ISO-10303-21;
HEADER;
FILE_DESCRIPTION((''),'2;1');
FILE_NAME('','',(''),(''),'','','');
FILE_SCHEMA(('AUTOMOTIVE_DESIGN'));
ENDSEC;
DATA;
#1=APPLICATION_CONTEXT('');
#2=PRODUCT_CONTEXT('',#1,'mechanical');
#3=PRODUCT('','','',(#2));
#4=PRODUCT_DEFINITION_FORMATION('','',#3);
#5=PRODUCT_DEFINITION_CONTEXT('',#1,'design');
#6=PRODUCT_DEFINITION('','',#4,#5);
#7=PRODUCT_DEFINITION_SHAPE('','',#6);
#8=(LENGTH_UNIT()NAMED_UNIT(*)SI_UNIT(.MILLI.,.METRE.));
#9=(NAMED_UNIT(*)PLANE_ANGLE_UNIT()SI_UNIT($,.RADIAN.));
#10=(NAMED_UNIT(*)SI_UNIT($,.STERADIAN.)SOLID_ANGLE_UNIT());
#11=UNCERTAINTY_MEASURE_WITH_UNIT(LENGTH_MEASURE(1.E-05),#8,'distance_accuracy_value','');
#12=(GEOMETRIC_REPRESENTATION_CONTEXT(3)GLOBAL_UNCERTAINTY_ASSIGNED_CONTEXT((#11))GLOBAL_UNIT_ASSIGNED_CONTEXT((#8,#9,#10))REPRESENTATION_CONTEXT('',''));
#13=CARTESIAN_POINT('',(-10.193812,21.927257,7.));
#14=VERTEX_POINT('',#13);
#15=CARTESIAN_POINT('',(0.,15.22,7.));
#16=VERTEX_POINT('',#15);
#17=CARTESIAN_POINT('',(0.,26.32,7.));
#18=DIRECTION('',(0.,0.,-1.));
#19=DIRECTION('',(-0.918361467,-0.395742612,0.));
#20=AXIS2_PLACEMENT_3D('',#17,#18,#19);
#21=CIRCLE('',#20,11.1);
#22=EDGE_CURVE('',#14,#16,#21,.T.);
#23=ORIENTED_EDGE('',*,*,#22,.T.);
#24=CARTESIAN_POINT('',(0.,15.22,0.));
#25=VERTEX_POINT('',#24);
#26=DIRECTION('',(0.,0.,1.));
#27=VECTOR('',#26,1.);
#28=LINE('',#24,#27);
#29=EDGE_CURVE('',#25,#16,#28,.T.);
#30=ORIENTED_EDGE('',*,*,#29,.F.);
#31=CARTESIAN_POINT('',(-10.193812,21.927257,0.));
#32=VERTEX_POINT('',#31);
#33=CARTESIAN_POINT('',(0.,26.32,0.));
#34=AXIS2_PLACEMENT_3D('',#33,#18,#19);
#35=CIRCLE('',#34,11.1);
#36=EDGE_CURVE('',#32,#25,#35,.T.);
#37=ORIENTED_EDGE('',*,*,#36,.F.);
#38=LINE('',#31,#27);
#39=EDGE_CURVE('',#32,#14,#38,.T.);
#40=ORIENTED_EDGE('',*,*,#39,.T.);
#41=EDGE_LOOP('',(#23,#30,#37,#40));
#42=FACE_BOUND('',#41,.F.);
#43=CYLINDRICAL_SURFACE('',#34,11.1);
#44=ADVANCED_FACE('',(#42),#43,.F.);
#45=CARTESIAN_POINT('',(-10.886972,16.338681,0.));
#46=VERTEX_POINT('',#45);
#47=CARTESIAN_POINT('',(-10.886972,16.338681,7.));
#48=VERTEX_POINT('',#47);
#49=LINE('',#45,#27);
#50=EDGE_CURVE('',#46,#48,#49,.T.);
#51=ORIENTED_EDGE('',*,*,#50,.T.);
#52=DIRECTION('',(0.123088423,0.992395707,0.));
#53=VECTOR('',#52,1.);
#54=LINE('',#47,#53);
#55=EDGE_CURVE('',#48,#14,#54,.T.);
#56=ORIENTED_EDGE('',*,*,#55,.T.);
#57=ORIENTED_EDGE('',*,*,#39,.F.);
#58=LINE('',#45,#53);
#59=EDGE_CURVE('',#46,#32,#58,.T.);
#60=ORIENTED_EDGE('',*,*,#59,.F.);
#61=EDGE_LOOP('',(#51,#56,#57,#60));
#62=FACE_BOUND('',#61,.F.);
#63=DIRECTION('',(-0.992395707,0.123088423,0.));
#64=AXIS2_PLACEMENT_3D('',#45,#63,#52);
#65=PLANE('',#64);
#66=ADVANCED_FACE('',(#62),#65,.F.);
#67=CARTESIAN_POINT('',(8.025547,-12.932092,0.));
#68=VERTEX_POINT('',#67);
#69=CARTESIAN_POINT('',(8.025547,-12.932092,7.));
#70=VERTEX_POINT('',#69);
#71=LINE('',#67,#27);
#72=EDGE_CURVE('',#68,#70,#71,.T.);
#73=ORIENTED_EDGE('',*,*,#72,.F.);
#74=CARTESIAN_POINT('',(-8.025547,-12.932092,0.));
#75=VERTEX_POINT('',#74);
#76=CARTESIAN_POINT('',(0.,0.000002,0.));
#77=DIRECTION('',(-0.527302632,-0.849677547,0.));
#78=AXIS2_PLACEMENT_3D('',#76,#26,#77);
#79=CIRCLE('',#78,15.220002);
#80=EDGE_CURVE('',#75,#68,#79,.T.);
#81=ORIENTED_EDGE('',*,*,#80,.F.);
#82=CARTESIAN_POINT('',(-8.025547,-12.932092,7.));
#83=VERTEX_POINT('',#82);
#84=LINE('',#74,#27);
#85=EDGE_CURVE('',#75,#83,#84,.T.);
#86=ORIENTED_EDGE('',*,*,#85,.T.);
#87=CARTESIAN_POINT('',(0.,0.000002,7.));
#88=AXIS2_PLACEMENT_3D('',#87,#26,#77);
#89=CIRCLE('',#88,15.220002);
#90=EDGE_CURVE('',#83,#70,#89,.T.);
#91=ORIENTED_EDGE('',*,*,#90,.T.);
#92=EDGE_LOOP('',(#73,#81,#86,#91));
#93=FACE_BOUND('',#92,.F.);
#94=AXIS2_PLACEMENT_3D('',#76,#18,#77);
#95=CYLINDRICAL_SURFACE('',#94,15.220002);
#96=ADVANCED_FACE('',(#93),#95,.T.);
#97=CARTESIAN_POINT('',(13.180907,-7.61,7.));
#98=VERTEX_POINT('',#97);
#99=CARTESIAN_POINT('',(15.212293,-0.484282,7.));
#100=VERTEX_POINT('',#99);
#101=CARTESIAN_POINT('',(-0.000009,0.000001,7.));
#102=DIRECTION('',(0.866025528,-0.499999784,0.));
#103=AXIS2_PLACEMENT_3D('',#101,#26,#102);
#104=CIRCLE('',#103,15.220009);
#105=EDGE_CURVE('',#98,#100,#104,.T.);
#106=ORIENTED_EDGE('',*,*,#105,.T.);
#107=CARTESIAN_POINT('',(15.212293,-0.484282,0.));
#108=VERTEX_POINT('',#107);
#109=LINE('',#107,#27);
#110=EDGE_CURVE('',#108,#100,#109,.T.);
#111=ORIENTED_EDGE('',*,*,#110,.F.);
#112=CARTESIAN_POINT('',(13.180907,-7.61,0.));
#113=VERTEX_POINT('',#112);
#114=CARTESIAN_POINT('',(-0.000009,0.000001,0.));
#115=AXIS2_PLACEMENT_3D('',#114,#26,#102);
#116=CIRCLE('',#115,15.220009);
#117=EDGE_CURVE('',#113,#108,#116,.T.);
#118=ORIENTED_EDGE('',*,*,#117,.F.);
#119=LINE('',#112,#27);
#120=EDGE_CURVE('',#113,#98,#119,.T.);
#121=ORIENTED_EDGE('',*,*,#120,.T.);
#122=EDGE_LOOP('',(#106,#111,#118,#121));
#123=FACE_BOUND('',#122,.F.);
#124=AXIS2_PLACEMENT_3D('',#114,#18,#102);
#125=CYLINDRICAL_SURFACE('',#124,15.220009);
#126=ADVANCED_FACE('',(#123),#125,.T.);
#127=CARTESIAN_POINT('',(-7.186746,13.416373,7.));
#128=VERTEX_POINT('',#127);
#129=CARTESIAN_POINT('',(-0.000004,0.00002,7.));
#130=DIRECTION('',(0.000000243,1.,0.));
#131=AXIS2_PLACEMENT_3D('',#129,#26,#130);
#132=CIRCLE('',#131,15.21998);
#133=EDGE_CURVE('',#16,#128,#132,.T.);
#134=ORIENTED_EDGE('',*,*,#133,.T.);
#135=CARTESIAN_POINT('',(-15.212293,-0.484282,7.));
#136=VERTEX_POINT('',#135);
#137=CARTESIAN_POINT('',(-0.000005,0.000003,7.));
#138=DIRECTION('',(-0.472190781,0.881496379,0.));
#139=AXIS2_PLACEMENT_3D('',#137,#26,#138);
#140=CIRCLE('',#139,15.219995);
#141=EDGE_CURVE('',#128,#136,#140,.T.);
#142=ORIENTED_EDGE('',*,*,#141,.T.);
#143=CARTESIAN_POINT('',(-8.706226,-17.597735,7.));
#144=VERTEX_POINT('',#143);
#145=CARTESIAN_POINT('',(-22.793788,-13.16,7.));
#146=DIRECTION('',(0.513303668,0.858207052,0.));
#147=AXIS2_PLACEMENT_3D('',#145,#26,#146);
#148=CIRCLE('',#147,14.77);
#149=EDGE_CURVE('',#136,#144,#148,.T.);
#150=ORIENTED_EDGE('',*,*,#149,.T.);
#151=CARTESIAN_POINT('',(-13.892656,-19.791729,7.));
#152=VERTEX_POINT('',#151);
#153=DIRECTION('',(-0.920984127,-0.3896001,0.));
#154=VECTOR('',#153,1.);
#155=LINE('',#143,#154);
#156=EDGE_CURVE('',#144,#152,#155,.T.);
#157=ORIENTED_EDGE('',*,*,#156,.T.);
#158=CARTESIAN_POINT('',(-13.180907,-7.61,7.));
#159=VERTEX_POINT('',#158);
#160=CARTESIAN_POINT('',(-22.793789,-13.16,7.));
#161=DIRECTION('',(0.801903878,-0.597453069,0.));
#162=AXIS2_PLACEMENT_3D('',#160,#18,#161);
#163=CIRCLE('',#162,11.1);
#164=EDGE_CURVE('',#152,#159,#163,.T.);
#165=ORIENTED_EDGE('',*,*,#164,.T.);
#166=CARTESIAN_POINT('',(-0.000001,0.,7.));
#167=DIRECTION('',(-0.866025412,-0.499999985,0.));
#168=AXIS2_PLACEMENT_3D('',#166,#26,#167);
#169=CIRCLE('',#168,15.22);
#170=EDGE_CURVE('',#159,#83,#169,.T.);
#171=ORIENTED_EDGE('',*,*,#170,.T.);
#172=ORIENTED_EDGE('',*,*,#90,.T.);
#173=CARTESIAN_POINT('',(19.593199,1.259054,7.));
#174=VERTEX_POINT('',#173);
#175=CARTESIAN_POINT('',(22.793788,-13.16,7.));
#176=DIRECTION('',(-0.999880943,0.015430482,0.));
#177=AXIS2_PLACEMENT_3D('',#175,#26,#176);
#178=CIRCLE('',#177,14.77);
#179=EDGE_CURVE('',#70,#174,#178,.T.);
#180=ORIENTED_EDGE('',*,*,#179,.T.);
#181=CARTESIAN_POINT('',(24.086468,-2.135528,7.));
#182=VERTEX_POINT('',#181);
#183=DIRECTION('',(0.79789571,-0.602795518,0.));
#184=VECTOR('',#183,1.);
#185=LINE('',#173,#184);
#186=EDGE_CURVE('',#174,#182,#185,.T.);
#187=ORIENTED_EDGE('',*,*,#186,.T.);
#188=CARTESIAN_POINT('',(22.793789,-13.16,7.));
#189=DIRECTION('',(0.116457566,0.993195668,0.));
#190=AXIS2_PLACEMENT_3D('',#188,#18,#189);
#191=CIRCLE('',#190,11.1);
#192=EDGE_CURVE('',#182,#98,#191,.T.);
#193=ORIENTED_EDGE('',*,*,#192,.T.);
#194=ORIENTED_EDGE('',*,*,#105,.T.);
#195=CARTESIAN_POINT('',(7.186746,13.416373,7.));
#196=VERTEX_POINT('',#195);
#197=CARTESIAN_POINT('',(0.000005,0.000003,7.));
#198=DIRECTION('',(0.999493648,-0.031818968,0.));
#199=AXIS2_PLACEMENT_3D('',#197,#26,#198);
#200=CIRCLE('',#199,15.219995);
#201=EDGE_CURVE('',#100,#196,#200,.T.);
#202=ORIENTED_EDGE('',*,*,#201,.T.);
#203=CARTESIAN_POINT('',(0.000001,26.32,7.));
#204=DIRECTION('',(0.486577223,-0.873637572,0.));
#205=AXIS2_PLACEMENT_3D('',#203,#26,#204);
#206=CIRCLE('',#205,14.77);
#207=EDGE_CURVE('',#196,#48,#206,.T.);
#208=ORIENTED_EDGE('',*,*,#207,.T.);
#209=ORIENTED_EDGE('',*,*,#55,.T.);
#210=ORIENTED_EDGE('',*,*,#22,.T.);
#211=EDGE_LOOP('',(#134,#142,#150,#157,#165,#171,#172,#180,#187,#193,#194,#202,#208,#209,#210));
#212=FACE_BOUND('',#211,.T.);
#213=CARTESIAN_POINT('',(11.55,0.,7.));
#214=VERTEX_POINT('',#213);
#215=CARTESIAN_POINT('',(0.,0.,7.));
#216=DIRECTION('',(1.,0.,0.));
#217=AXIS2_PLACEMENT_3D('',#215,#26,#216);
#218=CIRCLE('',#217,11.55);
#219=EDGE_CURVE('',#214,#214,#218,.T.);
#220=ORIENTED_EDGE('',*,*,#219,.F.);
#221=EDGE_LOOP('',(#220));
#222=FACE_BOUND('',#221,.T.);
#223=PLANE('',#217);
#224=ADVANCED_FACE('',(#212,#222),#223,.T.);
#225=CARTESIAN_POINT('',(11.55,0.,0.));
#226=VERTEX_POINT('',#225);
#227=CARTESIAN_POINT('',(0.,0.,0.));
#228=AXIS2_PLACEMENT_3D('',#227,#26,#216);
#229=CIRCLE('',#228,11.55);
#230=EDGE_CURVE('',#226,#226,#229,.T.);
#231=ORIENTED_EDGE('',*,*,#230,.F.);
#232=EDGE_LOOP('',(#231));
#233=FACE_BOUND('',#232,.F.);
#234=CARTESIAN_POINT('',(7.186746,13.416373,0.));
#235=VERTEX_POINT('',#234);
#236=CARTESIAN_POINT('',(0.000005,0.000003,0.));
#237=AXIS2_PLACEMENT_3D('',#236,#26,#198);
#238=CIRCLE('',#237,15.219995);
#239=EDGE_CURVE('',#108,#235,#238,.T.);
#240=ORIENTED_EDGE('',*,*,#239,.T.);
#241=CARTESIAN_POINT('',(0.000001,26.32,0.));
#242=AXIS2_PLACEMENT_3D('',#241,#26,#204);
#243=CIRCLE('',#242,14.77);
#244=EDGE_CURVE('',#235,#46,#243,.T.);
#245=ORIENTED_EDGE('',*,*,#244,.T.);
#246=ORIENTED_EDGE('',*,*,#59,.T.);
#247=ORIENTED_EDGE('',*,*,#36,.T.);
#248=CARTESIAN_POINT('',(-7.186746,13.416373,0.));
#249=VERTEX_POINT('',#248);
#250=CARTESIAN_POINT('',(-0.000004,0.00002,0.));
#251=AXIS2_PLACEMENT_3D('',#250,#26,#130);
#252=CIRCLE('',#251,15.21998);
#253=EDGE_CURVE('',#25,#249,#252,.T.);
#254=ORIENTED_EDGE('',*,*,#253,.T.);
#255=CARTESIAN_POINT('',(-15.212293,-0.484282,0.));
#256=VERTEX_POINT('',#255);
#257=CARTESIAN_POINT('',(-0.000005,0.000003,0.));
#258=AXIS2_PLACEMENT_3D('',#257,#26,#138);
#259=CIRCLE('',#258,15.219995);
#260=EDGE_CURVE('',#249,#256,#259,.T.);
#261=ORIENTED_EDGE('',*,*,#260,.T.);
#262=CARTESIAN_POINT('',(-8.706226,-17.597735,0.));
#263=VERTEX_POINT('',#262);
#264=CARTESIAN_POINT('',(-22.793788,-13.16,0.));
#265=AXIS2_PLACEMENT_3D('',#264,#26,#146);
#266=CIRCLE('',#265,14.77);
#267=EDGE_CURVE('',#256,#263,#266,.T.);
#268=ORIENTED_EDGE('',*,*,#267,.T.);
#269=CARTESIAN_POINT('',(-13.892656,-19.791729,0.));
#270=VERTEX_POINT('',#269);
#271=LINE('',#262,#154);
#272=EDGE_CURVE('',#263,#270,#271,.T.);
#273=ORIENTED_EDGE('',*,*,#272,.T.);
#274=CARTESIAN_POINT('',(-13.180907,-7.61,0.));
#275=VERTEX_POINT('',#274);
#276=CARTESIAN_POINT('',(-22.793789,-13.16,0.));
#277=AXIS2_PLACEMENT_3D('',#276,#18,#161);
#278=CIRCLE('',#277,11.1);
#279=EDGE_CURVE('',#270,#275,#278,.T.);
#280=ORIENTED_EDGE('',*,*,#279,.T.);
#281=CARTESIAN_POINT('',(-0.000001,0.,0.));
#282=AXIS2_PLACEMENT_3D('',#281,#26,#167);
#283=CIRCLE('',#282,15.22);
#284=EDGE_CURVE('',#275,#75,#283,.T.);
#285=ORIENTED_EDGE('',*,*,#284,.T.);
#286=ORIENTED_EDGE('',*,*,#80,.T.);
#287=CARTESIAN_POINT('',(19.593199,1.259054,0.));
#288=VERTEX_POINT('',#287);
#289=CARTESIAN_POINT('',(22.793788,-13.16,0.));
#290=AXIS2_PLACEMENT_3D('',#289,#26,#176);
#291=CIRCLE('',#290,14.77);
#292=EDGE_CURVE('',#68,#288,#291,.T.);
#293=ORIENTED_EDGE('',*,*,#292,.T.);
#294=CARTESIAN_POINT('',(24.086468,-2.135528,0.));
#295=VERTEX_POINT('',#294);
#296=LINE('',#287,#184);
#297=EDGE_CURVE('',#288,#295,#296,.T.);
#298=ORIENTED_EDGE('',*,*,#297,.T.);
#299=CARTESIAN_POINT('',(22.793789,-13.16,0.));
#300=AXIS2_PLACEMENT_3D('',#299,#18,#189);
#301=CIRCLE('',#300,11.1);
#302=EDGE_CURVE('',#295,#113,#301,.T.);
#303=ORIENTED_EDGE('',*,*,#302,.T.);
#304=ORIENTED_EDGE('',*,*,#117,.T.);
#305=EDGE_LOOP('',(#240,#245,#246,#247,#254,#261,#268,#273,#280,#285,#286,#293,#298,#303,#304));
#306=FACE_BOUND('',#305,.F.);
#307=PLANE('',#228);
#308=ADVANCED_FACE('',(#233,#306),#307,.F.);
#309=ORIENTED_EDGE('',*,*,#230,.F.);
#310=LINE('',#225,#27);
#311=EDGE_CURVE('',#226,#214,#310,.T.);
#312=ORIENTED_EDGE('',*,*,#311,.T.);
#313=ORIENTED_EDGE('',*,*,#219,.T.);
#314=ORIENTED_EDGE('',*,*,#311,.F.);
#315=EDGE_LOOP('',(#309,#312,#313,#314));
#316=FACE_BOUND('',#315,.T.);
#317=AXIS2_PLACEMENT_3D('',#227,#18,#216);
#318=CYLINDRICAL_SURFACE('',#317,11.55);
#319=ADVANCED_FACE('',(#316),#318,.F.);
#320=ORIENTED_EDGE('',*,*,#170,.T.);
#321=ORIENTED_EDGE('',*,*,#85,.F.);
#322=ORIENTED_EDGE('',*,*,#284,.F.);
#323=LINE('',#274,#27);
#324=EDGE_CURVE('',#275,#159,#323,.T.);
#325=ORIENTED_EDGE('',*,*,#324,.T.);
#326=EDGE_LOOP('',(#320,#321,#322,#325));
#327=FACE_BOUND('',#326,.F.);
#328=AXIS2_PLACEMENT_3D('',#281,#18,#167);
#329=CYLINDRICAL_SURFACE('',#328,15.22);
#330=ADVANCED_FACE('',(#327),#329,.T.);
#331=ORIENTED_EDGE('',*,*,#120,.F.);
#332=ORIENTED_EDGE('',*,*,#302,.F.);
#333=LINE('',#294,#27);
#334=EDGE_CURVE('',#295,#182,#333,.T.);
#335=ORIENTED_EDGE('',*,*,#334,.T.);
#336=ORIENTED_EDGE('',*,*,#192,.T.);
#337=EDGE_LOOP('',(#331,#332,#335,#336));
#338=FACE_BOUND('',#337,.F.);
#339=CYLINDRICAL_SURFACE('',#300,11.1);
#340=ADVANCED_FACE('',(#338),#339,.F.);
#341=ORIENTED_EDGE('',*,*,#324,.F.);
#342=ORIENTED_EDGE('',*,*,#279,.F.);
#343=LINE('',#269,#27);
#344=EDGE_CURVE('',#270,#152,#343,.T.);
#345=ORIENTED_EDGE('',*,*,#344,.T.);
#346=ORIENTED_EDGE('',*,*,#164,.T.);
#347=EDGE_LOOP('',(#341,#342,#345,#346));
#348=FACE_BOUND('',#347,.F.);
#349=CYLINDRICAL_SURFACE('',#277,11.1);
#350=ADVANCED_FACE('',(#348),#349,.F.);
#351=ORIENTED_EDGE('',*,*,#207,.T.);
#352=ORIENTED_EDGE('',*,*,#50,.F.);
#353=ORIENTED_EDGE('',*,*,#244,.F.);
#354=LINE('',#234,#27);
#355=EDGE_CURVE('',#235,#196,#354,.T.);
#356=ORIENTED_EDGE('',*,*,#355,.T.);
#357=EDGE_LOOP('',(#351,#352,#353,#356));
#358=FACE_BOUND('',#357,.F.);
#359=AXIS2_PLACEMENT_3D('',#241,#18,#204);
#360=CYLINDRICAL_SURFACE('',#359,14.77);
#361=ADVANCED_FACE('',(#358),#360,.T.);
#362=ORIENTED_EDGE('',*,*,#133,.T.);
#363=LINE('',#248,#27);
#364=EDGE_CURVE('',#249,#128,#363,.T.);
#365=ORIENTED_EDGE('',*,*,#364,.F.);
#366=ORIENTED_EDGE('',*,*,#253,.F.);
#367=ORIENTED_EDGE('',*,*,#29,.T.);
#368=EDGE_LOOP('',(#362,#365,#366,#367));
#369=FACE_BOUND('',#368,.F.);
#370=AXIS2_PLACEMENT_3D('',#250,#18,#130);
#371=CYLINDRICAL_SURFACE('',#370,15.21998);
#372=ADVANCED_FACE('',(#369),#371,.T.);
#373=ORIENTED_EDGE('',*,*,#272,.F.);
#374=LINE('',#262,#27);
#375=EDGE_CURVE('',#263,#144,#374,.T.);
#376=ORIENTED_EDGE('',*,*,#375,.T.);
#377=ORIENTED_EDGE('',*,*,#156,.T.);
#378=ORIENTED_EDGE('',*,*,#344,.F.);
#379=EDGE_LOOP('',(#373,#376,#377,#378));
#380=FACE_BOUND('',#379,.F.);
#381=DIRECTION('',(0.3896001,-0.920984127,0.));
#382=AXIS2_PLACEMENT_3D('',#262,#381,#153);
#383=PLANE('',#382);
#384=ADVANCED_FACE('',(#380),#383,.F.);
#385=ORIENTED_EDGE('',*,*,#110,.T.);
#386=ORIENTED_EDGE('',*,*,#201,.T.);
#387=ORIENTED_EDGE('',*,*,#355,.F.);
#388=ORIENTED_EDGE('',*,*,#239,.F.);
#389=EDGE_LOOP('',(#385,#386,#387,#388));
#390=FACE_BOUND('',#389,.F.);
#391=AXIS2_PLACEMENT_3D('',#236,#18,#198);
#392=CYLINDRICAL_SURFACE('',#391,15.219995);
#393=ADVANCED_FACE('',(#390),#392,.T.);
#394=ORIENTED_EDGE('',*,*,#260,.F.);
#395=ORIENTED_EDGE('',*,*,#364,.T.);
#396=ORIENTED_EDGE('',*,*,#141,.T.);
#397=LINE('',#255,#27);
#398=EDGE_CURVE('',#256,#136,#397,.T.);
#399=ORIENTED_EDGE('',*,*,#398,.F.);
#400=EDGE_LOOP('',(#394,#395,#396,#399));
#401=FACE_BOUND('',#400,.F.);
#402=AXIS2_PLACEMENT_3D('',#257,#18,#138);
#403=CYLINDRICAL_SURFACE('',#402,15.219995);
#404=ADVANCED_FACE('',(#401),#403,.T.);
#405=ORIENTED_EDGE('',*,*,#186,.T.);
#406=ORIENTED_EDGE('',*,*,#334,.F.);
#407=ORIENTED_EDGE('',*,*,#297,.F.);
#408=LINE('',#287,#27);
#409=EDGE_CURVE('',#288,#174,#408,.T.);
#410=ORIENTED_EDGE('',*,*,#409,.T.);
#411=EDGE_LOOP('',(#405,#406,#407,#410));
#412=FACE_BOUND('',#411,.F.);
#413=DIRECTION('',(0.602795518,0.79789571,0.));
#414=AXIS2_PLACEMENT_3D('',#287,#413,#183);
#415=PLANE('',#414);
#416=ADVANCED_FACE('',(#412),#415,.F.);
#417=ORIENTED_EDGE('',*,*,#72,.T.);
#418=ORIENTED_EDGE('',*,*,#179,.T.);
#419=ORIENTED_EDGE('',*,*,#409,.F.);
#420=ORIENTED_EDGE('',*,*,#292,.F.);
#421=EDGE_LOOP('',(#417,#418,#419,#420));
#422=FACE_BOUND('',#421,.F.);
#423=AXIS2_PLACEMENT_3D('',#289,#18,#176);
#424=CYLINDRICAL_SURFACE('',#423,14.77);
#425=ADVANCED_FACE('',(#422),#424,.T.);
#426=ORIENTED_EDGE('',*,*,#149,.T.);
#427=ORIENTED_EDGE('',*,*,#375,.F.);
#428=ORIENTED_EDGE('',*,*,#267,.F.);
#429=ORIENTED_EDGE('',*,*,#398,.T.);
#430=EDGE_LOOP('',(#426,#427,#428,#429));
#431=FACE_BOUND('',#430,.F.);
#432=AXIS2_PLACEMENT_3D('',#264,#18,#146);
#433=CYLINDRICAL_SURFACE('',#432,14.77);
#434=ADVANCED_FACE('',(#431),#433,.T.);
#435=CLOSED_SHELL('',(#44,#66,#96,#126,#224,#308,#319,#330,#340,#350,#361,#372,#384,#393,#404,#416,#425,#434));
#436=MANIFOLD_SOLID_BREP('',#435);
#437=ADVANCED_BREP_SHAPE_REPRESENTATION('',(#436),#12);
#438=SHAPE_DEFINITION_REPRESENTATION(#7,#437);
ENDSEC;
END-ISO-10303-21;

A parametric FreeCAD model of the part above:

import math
import FreeCAD as App
import Part
import Sketcher

V = App.Vector
Q = App.Units.Quantity

doc = App.newDocument("Part")
body = doc.addObject("PartDesign::Body", "Body")

sketch1 = doc.addObject("Sketcher::SketchObject", "Sketch")
body.addObject(sketch1)
sketch1.AttachmentSupport = (doc.XY_Plane, [""])
sketch1.MapMode = "FlatFace"
sketch1.addGeometry([
    Part.ArcOfCircle(Part.Circle(V(0, 26, 0), V(0, 0, 1), 11), math.radians(-90), math.radians(203)),
    Part.ArcOfCircle(Part.Circle(V(0, 0, 0), V(0, 0, 1), 15), math.radians(90), math.radians(118)),
    Part.ArcOfCircle(Part.Circle(V(0, 0, 0), V(0, 0, 1), 15), math.radians(118), math.radians(182)),
    Part.ArcOfCircle(Part.Circle(V(-23, -13, 0), V(0, 0, 1), 15), math.radians(59), math.radians(343)),
    Part.LineSegment(V(-9, -18, 0), V(-14, -20, 0)),
    Part.ArcOfCircle(Part.Circle(V(-23, -13, 0), V(0, 0, 1), 11), math.radians(30), math.radians(323)),
    Part.ArcOfCircle(Part.Circle(V(0, 0, 0), V(0, 0, 1), 15), math.radians(-150), math.radians(-122)),
    Part.ArcOfCircle(Part.Circle(V(0, 0, 0), V(0, 0, 1), 15), math.radians(-122), math.radians(-58)),
    Part.ArcOfCircle(Part.Circle(V(23, -13, 0), V(0, 0, 1), 15), math.radians(179), math.radians(463)),
    Part.LineSegment(V(20, 1, 0), V(24, -2, 0)),
    Part.ArcOfCircle(Part.Circle(V(23, -13, 0), V(0, 0, 1), 11), math.radians(150), math.radians(443)),
    Part.ArcOfCircle(Part.Circle(V(0, 0, 0), V(0, 0, 1), 15), math.radians(-30), math.radians(-2)),
    Part.ArcOfCircle(Part.Circle(V(0, 0, 0), V(0, 0, 1), 15), math.radians(-2), math.radians(62)),
    Part.ArcOfCircle(Part.Circle(V(0, 26, 0), V(0, 0, 1), 15), math.radians(-61), math.radians(223)),
    Part.LineSegment(V(-11, 16, 0), V(-10, 22, 0)),
    Part.Circle(V(0, 0, 0), V(0, 0, 1), 12),
], False)
sketch1.addConstraint([
    Sketcher.Constraint("Tangent", 0, 1, 1, 1),
    Sketcher.Constraint("Tangent", 1, 2, 2, 1),
    Sketcher.Constraint("Coincident", 2, 2, 3, 1),
    Sketcher.Constraint("Coincident", 3, 2, 4, 1),
    Sketcher.Constraint("Coincident", 4, 2, 5, 2),
    Sketcher.Constraint("Tangent", 5, 1, 6, 1),
    Sketcher.Constraint("Tangent", 6, 2, 7, 1),
    Sketcher.Constraint("Coincident", 7, 2, 8, 1),
    Sketcher.Constraint("Coincident", 8, 2, 9, 1),
    Sketcher.Constraint("Coincident", 9, 2, 10, 2),
    Sketcher.Constraint("Tangent", 10, 1, 11, 1),
    Sketcher.Constraint("Tangent", 11, 2, 12, 1),
    Sketcher.Constraint("Coincident", 12, 2, 13, 1),
    Sketcher.Constraint("Coincident", 13, 2, 14, 1),
    Sketcher.Constraint("Coincident", 14, 2, 0, 2),
    Sketcher.Constraint("Coincident", 2, 3, -1, 1),
    Sketcher.Constraint("Coincident", 6, 3, -1, 1),
    Sketcher.Constraint("Coincident", 11, 3, -1, 1),
    Sketcher.Constraint("Coincident", 15, 3, -1, 1),
    Sketcher.Constraint("Coincident", 5, 3, 3, 3),
    Sketcher.Constraint("Coincident", 10, 3, 8, 3),
    Sketcher.Constraint("Coincident", 13, 3, 0, 3),
    Sketcher.Constraint("Equal", 0, 5),
    Sketcher.Constraint("Equal", 3, 8),
    Sketcher.Constraint("Equal", 5, 10),
    Sketcher.Constraint("Equal", 2, 12),
    Sketcher.Constraint("Equal", 8, 13),
    Sketcher.Constraint("Symmetric", 3, 3, 8, 3, -2),
    Sketcher.Constraint("Symmetric", 6, 2, 7, 2, -2),
    Sketcher.Constraint("Symmetric", 2, 2, 11, 2, -2),
    Sketcher.Constraint("PointOnObject", 0, 3, -2),
    Sketcher.Constraint("PointOnObject", 0, 1, -2),
    Sketcher.Constraint("Horizontal", 1, 2, 12, 2),
    Sketcher.Constraint("Equal", 4, 9),
    Sketcher.Constraint("Equal", 9, 14),
    Sketcher.Constraint("Diameter", 15, Q("23.1 mm")),
    Sketcher.Constraint("Radius", 0, Q("11.1 mm")),
    Sketcher.Constraint("Radius", 3, Q("14.77 mm")),
    Sketcher.Constraint("Radius", 6, Q("15.22 mm")),
    Sketcher.Constraint("DistanceY", 3, 3, -1, 1, Q("13.16 mm")),
    Sketcher.Constraint("Distance", 4, Q("5.6314 mm")),
    Sketcher.Constraint("DistanceX", -1, 1, 8, 2, Q("19.593199 mm")),
    Sketcher.Constraint("DistanceY", 4, 2, -1, 1, Q("19.791729 mm")),
    Sketcher.Constraint("DistanceY", -1, 1, 13, 2, Q("16.338681 mm")),
])
pad1 = doc.addObject("PartDesign::Pad", "Pad")
body.addObject(pad1)
pad1.Profile = sketch1
pad1.Length = 7

doc.recompute()
